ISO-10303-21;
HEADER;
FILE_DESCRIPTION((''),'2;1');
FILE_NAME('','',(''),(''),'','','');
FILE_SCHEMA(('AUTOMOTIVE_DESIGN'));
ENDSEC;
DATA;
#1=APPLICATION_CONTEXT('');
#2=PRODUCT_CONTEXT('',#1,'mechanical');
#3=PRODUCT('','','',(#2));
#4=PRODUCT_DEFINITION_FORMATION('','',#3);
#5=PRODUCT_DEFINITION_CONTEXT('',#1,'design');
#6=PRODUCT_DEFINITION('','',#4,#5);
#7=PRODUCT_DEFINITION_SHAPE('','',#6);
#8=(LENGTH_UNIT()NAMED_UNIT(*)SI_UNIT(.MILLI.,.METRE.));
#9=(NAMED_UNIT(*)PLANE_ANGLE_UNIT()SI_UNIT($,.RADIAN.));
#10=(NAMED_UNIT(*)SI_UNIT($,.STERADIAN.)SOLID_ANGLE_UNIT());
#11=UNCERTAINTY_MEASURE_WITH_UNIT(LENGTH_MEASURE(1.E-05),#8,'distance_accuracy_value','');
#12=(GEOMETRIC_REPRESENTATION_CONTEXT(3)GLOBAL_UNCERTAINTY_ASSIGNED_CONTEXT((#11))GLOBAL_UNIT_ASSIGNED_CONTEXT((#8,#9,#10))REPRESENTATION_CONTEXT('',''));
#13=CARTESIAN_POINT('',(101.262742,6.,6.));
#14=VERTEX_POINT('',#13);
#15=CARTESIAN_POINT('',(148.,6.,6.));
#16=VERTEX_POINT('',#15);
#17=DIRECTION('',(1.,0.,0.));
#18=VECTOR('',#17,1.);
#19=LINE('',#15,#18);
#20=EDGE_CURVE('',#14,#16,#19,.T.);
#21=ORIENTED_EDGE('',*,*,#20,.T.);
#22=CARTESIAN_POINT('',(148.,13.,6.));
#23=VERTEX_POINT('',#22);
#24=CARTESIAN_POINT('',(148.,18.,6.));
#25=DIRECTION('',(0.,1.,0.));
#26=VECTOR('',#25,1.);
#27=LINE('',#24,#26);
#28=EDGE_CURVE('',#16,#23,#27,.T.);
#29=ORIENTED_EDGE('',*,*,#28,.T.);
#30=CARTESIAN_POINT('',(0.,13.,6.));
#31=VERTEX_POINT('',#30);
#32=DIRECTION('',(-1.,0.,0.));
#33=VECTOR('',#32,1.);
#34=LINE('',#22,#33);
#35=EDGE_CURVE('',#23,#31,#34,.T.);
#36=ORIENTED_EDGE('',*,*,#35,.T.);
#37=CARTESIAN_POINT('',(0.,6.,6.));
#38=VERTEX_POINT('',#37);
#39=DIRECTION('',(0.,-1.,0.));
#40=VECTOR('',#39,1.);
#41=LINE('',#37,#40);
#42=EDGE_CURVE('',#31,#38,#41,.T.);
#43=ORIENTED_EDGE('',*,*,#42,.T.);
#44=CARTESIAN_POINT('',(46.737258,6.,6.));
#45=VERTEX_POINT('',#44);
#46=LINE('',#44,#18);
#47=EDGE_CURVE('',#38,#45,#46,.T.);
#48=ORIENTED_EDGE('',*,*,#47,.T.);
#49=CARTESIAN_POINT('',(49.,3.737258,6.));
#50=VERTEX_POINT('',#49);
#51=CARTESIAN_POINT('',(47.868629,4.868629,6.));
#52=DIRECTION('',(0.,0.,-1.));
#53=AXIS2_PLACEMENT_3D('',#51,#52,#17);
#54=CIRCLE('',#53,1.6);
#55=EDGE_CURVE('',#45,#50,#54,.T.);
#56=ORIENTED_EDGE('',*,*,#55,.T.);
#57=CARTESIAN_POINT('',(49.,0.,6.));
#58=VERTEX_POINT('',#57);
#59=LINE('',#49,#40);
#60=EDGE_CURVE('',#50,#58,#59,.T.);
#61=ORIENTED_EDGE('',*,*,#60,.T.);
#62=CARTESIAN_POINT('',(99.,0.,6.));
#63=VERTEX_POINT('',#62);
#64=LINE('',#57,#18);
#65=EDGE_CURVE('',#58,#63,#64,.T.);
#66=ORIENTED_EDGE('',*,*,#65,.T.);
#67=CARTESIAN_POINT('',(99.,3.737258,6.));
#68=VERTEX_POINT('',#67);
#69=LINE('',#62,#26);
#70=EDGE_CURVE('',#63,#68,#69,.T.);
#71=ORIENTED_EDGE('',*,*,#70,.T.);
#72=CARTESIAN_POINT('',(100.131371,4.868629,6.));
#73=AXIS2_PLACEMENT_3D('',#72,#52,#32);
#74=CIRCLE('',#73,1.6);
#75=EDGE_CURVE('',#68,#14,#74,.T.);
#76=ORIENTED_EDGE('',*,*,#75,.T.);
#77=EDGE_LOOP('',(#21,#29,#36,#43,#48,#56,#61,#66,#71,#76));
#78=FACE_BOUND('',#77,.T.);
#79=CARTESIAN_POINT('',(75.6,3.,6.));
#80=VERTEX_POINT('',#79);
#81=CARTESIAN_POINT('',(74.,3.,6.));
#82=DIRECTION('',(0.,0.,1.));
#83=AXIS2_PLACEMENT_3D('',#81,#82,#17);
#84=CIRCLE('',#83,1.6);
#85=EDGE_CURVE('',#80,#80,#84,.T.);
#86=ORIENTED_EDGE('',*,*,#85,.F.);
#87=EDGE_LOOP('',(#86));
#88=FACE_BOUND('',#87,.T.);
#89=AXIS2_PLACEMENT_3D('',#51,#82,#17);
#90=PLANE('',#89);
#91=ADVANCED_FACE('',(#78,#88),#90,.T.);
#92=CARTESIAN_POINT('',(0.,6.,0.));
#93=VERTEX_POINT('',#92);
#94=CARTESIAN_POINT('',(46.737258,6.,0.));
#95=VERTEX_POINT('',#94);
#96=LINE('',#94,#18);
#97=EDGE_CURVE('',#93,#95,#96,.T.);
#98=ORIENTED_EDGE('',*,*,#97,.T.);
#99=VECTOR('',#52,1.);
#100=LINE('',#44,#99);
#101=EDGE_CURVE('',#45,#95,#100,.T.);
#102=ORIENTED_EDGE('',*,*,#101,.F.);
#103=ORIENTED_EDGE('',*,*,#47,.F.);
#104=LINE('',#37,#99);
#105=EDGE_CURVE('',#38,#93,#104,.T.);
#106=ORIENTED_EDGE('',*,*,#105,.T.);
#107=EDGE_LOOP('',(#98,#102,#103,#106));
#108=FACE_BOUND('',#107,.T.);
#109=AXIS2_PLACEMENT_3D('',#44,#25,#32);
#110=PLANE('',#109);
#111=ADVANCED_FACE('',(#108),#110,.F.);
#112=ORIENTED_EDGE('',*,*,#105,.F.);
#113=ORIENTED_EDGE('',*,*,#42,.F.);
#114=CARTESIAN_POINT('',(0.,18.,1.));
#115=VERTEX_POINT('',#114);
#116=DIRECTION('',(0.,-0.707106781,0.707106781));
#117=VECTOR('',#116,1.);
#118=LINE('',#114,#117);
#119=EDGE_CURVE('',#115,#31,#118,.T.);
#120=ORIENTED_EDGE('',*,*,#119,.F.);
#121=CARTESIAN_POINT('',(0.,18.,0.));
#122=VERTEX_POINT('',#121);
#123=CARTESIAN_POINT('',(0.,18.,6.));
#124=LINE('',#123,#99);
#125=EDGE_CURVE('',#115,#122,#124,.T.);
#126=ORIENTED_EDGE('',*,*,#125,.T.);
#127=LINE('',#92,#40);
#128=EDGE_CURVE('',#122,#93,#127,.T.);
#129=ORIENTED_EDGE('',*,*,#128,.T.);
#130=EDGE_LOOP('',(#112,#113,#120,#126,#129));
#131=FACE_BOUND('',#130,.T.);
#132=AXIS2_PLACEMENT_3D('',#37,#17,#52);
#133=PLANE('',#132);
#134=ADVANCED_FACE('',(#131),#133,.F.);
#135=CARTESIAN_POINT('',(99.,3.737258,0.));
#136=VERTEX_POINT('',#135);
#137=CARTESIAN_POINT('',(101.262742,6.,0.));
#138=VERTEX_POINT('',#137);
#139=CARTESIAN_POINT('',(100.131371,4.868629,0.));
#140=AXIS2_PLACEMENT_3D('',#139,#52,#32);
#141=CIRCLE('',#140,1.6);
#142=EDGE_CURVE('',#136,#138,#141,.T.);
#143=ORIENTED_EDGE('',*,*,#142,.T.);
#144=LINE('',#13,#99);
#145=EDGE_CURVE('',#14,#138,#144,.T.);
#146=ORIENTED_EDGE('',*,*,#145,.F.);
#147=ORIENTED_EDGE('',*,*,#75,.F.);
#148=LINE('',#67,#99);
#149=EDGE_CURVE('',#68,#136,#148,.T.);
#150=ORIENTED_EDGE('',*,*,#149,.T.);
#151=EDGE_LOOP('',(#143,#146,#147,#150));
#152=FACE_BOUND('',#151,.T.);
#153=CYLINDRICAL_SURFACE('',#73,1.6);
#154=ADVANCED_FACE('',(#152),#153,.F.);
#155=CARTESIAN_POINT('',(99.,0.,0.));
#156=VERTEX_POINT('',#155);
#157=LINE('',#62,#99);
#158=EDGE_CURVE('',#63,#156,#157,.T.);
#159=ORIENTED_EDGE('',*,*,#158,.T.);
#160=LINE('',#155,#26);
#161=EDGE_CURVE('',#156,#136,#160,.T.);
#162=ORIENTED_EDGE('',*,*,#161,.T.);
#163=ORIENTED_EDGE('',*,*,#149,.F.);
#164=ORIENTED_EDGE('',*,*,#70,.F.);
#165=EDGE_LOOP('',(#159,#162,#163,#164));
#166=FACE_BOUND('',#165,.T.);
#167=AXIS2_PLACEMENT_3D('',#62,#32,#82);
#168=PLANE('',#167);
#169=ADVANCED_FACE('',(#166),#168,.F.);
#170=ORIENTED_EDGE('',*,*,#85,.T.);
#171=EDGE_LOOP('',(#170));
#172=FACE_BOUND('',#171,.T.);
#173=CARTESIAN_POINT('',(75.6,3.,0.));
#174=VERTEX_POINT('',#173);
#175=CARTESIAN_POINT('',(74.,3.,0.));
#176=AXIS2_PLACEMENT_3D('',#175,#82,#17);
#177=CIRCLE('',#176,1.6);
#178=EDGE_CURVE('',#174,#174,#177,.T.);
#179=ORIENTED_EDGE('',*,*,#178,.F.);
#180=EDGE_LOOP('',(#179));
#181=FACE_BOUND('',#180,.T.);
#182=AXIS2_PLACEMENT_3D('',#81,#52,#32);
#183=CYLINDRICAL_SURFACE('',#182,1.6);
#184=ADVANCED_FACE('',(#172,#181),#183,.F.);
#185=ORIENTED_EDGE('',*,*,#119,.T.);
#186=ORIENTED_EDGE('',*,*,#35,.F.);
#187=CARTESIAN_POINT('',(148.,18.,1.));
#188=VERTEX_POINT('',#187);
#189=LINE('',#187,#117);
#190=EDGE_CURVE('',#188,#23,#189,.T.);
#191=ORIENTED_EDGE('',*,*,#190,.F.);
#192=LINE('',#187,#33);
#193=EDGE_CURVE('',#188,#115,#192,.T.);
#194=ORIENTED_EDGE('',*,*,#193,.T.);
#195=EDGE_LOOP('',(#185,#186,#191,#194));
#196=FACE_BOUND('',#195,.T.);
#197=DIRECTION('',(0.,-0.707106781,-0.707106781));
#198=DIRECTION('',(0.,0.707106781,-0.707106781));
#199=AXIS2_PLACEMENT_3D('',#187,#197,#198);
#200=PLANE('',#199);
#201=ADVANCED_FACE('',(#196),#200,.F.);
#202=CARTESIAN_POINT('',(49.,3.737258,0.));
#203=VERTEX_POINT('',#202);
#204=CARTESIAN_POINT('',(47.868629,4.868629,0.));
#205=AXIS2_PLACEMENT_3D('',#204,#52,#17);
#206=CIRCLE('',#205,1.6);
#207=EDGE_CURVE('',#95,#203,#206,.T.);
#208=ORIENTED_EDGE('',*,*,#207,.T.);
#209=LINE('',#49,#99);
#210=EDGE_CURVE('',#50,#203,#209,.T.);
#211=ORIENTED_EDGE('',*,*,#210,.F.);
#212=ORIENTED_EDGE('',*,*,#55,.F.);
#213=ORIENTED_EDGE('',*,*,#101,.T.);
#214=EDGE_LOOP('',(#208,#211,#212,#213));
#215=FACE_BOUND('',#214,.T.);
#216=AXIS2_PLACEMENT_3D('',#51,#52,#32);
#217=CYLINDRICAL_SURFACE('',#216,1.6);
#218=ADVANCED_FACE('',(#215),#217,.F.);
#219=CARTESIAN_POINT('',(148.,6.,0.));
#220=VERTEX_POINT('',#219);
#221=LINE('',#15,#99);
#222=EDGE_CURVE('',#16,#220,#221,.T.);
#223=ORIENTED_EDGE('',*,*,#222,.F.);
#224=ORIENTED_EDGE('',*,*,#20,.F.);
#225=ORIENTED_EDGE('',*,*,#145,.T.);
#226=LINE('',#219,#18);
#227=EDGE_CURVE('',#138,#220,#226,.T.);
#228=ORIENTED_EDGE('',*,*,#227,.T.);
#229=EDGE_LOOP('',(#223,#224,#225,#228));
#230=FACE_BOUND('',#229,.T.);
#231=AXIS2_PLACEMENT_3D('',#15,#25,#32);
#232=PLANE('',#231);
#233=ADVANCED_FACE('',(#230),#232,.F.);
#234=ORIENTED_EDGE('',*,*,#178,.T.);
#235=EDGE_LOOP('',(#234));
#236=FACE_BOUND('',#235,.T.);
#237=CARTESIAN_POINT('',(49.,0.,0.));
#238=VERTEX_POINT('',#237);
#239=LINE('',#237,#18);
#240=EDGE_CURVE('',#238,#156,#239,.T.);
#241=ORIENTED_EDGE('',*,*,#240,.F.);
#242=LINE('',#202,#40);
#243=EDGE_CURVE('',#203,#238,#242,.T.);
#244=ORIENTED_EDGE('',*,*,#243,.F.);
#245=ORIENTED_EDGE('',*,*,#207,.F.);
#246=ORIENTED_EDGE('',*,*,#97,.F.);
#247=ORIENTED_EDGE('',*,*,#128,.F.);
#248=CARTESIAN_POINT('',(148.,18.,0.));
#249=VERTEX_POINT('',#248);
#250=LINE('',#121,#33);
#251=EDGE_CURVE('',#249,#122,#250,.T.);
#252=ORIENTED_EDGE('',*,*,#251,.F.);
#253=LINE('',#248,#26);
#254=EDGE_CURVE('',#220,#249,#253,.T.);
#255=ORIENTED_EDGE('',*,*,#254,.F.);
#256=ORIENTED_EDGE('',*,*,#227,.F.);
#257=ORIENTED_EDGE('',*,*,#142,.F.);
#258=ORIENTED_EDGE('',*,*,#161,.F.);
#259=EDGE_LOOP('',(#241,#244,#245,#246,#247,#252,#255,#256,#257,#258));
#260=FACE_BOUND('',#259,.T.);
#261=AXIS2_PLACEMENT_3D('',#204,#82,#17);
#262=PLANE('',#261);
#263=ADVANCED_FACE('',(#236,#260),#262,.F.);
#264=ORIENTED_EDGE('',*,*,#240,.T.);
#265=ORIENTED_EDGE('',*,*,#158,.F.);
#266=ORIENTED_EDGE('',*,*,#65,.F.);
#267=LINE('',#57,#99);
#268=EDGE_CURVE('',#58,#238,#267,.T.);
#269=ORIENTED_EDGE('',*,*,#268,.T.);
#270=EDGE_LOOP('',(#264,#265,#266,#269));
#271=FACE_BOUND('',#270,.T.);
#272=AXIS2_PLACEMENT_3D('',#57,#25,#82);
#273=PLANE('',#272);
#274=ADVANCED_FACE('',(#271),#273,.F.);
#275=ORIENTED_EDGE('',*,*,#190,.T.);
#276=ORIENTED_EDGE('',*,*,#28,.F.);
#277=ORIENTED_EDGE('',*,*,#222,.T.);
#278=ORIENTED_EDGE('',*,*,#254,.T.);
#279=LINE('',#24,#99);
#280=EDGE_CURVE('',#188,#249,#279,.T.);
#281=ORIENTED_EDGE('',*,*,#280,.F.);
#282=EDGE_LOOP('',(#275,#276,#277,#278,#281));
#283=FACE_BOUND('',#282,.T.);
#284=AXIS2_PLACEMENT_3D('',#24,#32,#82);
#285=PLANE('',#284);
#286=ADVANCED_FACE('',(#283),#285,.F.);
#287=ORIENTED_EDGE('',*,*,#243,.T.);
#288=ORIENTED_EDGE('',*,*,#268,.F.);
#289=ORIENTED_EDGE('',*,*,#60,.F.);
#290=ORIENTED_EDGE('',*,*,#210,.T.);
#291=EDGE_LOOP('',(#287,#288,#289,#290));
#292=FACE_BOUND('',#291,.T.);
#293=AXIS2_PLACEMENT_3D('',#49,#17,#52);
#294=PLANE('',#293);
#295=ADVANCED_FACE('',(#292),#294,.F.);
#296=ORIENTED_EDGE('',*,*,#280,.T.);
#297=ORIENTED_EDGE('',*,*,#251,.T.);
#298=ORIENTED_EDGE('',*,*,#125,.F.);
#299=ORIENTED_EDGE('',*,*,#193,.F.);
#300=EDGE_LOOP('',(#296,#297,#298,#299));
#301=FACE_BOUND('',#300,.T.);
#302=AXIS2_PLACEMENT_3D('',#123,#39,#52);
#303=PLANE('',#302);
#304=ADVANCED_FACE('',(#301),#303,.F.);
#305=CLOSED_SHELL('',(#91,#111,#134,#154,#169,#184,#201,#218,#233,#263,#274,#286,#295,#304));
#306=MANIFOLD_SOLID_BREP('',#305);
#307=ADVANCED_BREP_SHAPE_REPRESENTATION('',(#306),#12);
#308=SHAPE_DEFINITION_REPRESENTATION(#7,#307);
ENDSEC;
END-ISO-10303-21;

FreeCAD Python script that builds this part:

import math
import FreeCAD as App
import Part
import Sketcher
from FreeCAD import Vector
Q = App.Units.Quantity

doc = App.newDocument("Part")
params = doc.addObject("Spreadsheet::Sheet", "Params")
for row, (alias, value) in enumerate([
    ("sketch1_diameter", "3.2 mm"),
    ("sketch1_width", "50 mm"),
    ("sketch1_width2", "148 mm"),
    ("sketch1_height", "12 mm"),
    ("pad1_length", "6 mm"),
    ("sketch2_width", "5 mm"),
], start=1):
    params.set(f"A{row}", alias)
    params.set(f"B{row}", "=" + value)
    params.setAlias(f"B{row}", alias)

body = doc.addObject("PartDesign::Body", "Body")

# Sketch on XY plane
sketch1 = body.newObject("Sketcher::SketchObject", "Sketch")
sketch1.AttachmentSupport = (doc.getObject("XY_Plane"), [""])
sketch1.MapMode = "FlatFace"
sketch1.addGeometry([
    Part.LineSegment(Vector(49, 3.737258, 0), Vector(49, 0, 0)),  # 0
    Part.LineSegment(Vector(49, 0, 0), Vector(99, 0, 0)),  # 1
    Part.LineSegment(Vector(99, 0, 0), Vector(99, 3.737258, 0)),  # 2
    Part.ArcOfCircle(Part.Circle(Vector(100.131371, 4.868629, 0), Vector(0, 0, 1), 1.6), math.radians(45), math.radians(225)),  # 3
    Part.LineSegment(Vector(101.262742, 6, 0), Vector(148, 6, 0)),  # 4
    Part.LineSegment(Vector(148, 6, 0), Vector(148, 18, 0)),  # 5
    Part.LineSegment(Vector(148, 18, 0), Vector(0, 18, 0)),  # 6
    Part.LineSegment(Vector(0, 18, 0), Vector(0, 6, 0)),  # 7
    Part.LineSegment(Vector(0, 6, 0), Vector(46.737258, 6, 0)),  # 8
    Part.ArcOfCircle(Part.Circle(Vector(47.868629, 4.868629, 0), Vector(0, 0, 1), 1.6), math.radians(-45), math.radians(135)),  # 9
    Part.Circle(Vector(74, 3, 0), Vector(0, 0, 1), 1.6),  # 10
], False)
sketch1.addConstraint([
    Sketcher.Constraint("Coincident", 0, 2, 1, 1),
    Sketcher.Constraint("Coincident", 1, 2, 2, 1),
    Sketcher.Constraint("Coincident", 2, 2, 3, 2),
    Sketcher.Constraint("Coincident", 3, 1, 4, 1),
    Sketcher.Constraint("Coincident", 4, 2, 5, 1),
    Sketcher.Constraint("Coincident", 5, 2, 6, 1),
    Sketcher.Constraint("Coincident", 6, 2, 7, 1),
    Sketcher.Constraint("Coincident", 7, 2, 8, 1),
    Sketcher.Constraint("Coincident", 8, 2, 9, 2),
    Sketcher.Constraint("Coincident", 9, 1, 0, 1),
    Sketcher.Constraint("Vertical", 0),
    Sketcher.Constraint("Horizontal", 1),
    Sketcher.Constraint("Vertical", 2),
    Sketcher.Constraint("Horizontal", 4),
    Sketcher.Constraint("Vertical", 5),
    Sketcher.Constraint("Horizontal", 6),
    Sketcher.Constraint("Vertical", 7),
    Sketcher.Constraint("Horizontal", 8),
    Sketcher.Constraint("Equal", 3, 9),
    Sketcher.Constraint("Equal", 9, 10),
    Sketcher.Constraint("PointOnObject", 0, 2, -1),
    Sketcher.Constraint("PointOnObject", 6, 2, -2),
    Sketcher.Constraint("Horizontal", 3, 3, 9, 3),
    Sketcher.Constraint("Horizontal", 4, 2, 7, 2),
    Sketcher.Constraint("Horizontal", 2, 2, 9, 1),
    Sketcher.Constraint("Equal", 4, 8),
    Sketcher.Constraint("Diameter", 10, Q("3.2 mm")),
    Sketcher.Constraint("DistanceX", 1, 1, 1, 2, Q("50 mm")),
    Sketcher.Constraint("DistanceX", 6, 2, 6, 1, Q("148 mm")),
    Sketcher.Constraint("DistanceY", 5, 1, 5, 2, Q("12 mm")),
    Sketcher.Constraint("DistanceX", -1, 1, 10, 3, Q("74 mm")),
    Sketcher.Constraint("DistanceY", -1, 1, 10, 3, Q("3 mm")),
    Sketcher.Constraint("DistanceY", -1, 1, 3, 1, Q("6 mm")),
    Sketcher.Constraint("DistanceX", 4, 1, 4, 2, Q("46.737258 mm")),
    Sketcher.Constraint("DistanceX", -1, 1, 3, 3, Q("100.131371 mm")),
])
sketch1.setExpression("Constraints[26]", "Params.sketch1_diameter")
sketch1.setExpression("Constraints[27]", "Params.sketch1_width")
sketch1.setExpression("Constraints[28]", "Params.sketch1_width2")
sketch1.setExpression("Constraints[29]", "Params.sketch1_height")
pad1 = body.newObject("PartDesign::Pad", "Pad")
pad1.Profile = sketch1
pad1.setExpression("Length", "Params.pad1_length")

# Sketch on YZ plane
sketch2 = body.newObject("Sketcher::SketchObject", "Sketch001")
sketch2.AttachmentSupport = (doc.getObject("YZ_Plane"), [""])
sketch2.MapMode = "FlatFace"
sketch2.addGeometry([
    Part.LineSegment(Vector(18, 1, 0), Vector(13, 6, 0)),
    Part.LineSegment(Vector(13, 6, 0), Vector(18, 6, 0)),
    Part.LineSegment(Vector(18, 6, 0), Vector(18, 1, 0)),
], False)
sketch2.addConstraint([
    Sketcher.Constraint("Coincident", 0, 2, 1, 1),
    Sketcher.Constraint("Coincident", 1, 2, 2, 1),
    Sketcher.Constraint("Coincident", 2, 2, 0, 1),
    Sketcher.Constraint("Horizontal", 1),
    Sketcher.Constraint("Vertical", 2),
    Sketcher.Constraint("Equal", 1, 2),
    Sketcher.Constraint("DistanceX", 1, 1, 1, 2, Q("5 mm")),
    Sketcher.Constraint("DistanceX", -1, 1, 0, 2, Q("13 mm")),
    Sketcher.Constraint("DistanceY", -1, 1, 0, 2, Q("6 mm")),
])
sketch2.setExpression("Constraints[6]", "Params.sketch2_width")
pocket1 = body.newObject("PartDesign::Pocket", "Pocket")
pocket1.Profile = sketch2
pocket1.Type = "ThroughAll"
pocket1.Reversed = True

doc.recompute()
